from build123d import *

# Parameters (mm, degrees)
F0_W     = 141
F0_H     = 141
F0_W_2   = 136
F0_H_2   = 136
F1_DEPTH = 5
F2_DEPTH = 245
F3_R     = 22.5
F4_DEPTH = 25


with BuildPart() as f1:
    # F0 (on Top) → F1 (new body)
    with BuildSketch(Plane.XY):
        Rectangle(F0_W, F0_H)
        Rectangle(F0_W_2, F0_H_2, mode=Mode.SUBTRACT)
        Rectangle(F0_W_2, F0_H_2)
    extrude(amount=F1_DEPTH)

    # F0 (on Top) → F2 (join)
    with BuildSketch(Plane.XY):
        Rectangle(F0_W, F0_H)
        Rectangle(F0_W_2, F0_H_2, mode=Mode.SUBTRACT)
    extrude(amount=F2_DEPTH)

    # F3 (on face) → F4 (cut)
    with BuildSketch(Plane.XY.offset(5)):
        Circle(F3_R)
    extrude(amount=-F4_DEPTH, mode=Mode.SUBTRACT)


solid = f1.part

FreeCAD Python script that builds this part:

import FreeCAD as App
import Part
import Sketcher

V = App.Vector
Q = App.Units.Quantity

doc = App.newDocument("Part")
params = doc.addObject("Spreadsheet::Sheet", "Params")
for row, (alias, value) in enumerate([
    ("sketch1_width", "141 mm"),
    ("pad1_length", "5 mm"),
    ("sketch2_width", "141 mm"),
    ("sketch2_width2", "136 mm"),
    ("pad2_length", "245 mm"),
    ("sketch3_diameter", "45 mm"),
    ("pocket1_length", "25 mm"),
], start=1):
    params.set(f"A{row}", alias)
    params.set(f"B{row}", "=" + value)
    params.setAlias(f"B{row}", alias)

body = doc.addObject("PartDesign::Body", "Body")

# Sketch on XY plane
sketch1 = body.newObject("Sketcher::SketchObject", "Sketch")
sketch1.AttachmentSupport = (doc.getObject("XY_Plane"), [""])
sketch1.MapMode = "FlatFace"
sketch1.addGeometry([
    Part.LineSegment(V(-70.5, 70.5, 0), V(-70.5, -70.5, 0)),
    Part.LineSegment(V(-70.5, -70.5, 0), V(70.5, -70.5, 0)),
    Part.LineSegment(V(70.5, -70.5, 0), V(70.5, 70.5, 0)),
    Part.LineSegment(V(70.5, 70.5, 0), V(-70.5, 70.5, 0)),
], False)
sketch1.addConstraint([
    Sketcher.Constraint("Coincident", 0, 2, 1, 1),
    Sketcher.Constraint("Coincident", 1, 2, 2, 1),
    Sketcher.Constraint("Coincident", 2, 2, 3, 1),
    Sketcher.Constraint("Coincident", 3, 2, 0, 1),
    Sketcher.Constraint("Vertical", 0),
    Sketcher.Constraint("Horizontal", 1),
    Sketcher.Constraint("Vertical", 2),
    Sketcher.Constraint("Horizontal", 3),
    Sketcher.Constraint("Symmetric", 0, 2, 2, 2, -1, 1),
    Sketcher.Constraint("Equal", 3, 0),
    Sketcher.Constraint("DistanceX", 1, 1, 1, 2, Q("141 mm")),
])
sketch1.setExpression("Constraints[10]", "Params.sketch1_width")
pad1 = body.newObject("PartDesign::Pad", "Pad")
pad1.Profile = sketch1
pad1.setExpression("Length", "Params.pad1_length")

# Sketch on XY plane
sketch2 = body.newObject("Sketcher::SketchObject", "Sketch001")
sketch2.AttachmentSupport = (doc.getObject("XY_Plane"), [""])
sketch2.MapMode = "FlatFace"
sketch2.addGeometry([
    Part.LineSegment(V(-70.5, 70.5, 0), V(-70.5, -70.5, 0)),  # 0
    Part.LineSegment(V(-70.5, -70.5, 0), V(70.5, -70.5, 0)),  # 1
    Part.LineSegment(V(70.5, -70.5, 0), V(70.5, 70.5, 0)),  # 2
    Part.LineSegment(V(70.5, 70.5, 0), V(-70.5, 70.5, 0)),  # 3
    Part.LineSegment(V(68, -68, 0), V(-68, -68, 0)),  # 4
    Part.LineSegment(V(-68, -68, 0), V(-68, 68, 0)),  # 5
    Part.LineSegment(V(-68, 68, 0), V(68, 68, 0)),  # 6
    Part.LineSegment(V(68, 68, 0), V(68, -68, 0)),  # 7
], False)
sketch2.addConstraint([
    Sketcher.Constraint("Coincident", 0, 2, 1, 1),
    Sketcher.Constraint("Coincident", 1, 2, 2, 1),
    Sketcher.Constraint("Coincident", 2, 2, 3, 1),
    Sketcher.Constraint("Coincident", 3, 2, 0, 1),
    Sketcher.Constraint("Coincident", 4, 2, 5, 1),
    Sketcher.Constraint("Coincident", 5, 2, 6, 1),
    Sketcher.Constraint("Coincident", 6, 2, 7, 1),
    Sketcher.Constraint("Coincident", 7, 2, 4, 1),
    Sketcher.Constraint("Vertical", 0),
    Sketcher.Constraint("Horizontal", 1),
    Sketcher.Constraint("Vertical", 2),
    Sketcher.Constraint("Horizontal", 3),
    Sketcher.Constraint("Horizontal", 4),
    Sketcher.Constraint("Vertical", 5),
    Sketcher.Constraint("Horizontal", 6),
    Sketcher.Constraint("Vertical", 7),
    Sketcher.Constraint("Symmetric", 0, 2, 2, 2, -1, 1),
    Sketcher.Constraint("Symmetric", 4, 2, 6, 2, -1, 1),
    Sketcher.Constraint("Equal", 3, 0),
    Sketcher.Constraint("Equal", 6, 5),
    Sketcher.Constraint("DistanceX", 1, 1, 1, 2, Q("141 mm")),
    Sketcher.Constraint("DistanceX", 4, 2, 4, 1, Q("136 mm")),
])
sketch2.setExpression("Constraints[20]", "Params.sketch2_width")
sketch2.setExpression("Constraints[21]", "Params.sketch2_width2")
pad2 = body.newObject("PartDesign::Pad", "Pad001")
pad2.Profile = sketch2
pad2.setExpression("Length", "Params.pad2_length")

# Sketch on XY plane
sketch3 = body.newObject("Sketcher::SketchObject", "Sketch002")
sketch3.AttachmentSupport = (doc.getObject("XY_Plane"), [""])
sketch3.MapMode = "FlatFace"
sketch3.AttachmentOffset = App.Placement(V(0, 0, 5), App.Rotation())
sketch3.addGeometry(Part.Circle(V(0, 0, 0), V(0, 0, 1), 22.5), False)
sketch3.addConstraint([
    Sketcher.Constraint("Coincident", 0, 3, -1, 1),
    Sketcher.Constraint("Diameter", 0, Q("45 mm")),
])
sketch3.setExpression("Constraints[1]", "Params.sketch3_diameter")
pocket1 = body.newObject("PartDesign::Pocket", "Pocket")
pocket1.Profile = sketch3
pocket1.setExpression("Length", "Params.pocket1_length")

doc.recompute()
